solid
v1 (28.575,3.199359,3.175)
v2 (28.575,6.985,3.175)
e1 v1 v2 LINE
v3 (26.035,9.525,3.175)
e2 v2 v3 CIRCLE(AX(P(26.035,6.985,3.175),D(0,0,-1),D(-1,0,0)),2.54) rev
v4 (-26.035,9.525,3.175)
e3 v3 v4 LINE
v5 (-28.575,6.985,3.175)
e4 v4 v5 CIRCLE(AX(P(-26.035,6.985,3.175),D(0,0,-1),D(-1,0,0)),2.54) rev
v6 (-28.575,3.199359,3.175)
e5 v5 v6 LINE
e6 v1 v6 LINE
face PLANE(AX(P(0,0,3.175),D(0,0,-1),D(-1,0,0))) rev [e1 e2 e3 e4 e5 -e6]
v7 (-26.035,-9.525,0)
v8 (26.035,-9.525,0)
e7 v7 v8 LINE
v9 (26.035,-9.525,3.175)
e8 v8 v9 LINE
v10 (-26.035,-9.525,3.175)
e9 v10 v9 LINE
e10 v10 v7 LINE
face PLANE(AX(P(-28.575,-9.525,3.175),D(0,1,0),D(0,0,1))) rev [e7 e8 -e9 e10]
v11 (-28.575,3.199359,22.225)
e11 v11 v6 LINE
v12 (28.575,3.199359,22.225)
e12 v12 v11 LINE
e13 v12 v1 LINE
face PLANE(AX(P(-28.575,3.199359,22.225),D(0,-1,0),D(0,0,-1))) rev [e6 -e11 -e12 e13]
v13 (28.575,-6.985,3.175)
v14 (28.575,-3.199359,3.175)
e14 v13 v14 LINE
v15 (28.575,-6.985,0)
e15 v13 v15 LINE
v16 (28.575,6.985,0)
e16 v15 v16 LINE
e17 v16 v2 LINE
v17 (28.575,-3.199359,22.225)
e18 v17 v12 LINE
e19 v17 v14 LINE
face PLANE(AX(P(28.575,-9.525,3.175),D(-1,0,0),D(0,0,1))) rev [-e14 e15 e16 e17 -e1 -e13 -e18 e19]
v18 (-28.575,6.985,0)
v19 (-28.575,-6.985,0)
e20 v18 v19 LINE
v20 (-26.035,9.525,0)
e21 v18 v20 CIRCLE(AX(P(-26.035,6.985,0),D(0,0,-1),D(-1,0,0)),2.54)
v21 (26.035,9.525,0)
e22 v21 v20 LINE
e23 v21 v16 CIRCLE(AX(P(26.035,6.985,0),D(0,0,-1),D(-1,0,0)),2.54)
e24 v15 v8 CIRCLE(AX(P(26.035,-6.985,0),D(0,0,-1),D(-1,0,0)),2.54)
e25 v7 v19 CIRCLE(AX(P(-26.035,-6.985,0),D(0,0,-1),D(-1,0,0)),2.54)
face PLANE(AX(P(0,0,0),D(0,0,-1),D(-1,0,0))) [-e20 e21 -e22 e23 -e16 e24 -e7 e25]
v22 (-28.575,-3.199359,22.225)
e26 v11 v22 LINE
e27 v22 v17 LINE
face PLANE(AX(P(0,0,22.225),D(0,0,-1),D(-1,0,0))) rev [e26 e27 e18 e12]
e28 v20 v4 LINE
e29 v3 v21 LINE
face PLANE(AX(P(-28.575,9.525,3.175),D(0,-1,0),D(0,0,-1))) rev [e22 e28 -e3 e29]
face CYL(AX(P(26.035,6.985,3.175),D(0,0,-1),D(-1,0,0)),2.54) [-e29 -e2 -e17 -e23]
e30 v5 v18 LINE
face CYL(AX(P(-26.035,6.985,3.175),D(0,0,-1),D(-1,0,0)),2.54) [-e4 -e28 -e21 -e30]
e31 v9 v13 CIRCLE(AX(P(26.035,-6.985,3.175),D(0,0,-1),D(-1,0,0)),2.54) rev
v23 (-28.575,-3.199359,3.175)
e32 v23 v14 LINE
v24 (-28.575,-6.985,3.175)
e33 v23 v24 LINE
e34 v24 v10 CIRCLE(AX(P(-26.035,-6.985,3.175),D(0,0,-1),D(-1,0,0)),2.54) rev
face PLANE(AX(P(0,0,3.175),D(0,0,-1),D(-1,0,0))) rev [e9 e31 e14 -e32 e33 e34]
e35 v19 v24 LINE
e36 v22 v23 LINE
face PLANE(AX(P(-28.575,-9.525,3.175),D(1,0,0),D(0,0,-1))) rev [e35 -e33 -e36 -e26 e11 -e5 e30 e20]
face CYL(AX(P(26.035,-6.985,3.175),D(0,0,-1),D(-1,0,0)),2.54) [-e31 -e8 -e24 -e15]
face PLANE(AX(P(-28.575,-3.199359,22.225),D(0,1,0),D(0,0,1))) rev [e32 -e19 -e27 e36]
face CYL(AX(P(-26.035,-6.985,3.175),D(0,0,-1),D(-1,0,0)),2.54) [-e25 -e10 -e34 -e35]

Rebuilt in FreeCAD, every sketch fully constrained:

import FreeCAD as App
import Part
import Sketcher
from FreeCAD import Vector
Q = App.Units.Quantity


def edges_at(feature, points):
    """Names of the edges that pass closest to the given points."""
    edges = feature.Shape.Edges
    near = lambda p: min(range(len(edges)), key=lambda i: edges[i].distToShape(Part.Vertex(*p))[0])
    return sorted({f"Edge{near(p) + 1}" for p in points})

doc = App.newDocument("Part")
params = doc.addObject("Spreadsheet::Sheet", "Params")
for row, (alias, value) in enumerate([
    ("sketch1_width", "2.25 in"),
    ("sketch1_height", "0.75 in"),
    ("pad1_length", "0.125 in"),
    ("sketch2_width", "2.25 in"),
    ("pad2_length", "0.75 in"),
    ("fillet_radius", "0.1 in"),
], start=1):
    params.set(f"A{row}", alias)
    params.set(f"B{row}", "=" + value)
    params.setAlias(f"B{row}", alias)

body = doc.addObject("PartDesign::Body", "Body")

sketch1 = doc.addObject("Sketcher::SketchObject", "Sketch")
body.addObject(sketch1)
sketch1.AttachmentSupport = (doc.XY_Plane, [""])
sketch1.MapMode = "FlatFace"
sketch1.addGeometry([
    Part.LineSegment(Vector(-29, 10, 0), Vector(-29, -10, 0)),
    Part.LineSegment(Vector(-29, -10, 0), Vector(29, -10, 0)),
    Part.LineSegment(Vector(29, -10, 0), Vector(29, 10, 0)),
    Part.LineSegment(Vector(29, 10, 0), Vector(-29, 10, 0)),
], False)
sketch1.addConstraint([
    Sketcher.Constraint("Coincident", 0, 2, 1, 1),
    Sketcher.Constraint("Coincident", 1, 2, 2, 1),
    Sketcher.Constraint("Coincident", 2, 2, 3, 1),
    Sketcher.Constraint("Coincident", 3, 2, 0, 1),
    Sketcher.Constraint("Vertical", 0),
    Sketcher.Constraint("Horizontal", 1),
    Sketcher.Constraint("Vertical", 2),
    Sketcher.Constraint("Horizontal", 3),
    Sketcher.Constraint("Symmetric", 0, 2, 2, 2, -1, 1),
    Sketcher.Constraint("DistanceX", 1, 1, 1, 2, Q("2.25 in")),
    Sketcher.Constraint("DistanceY", 0, 2, 0, 1, Q("0.75 in")),
])
sketch1.setExpression("Constraints[9]", "Params.sketch1_width")
sketch1.setExpression("Constraints[10]", "Params.sketch1_height")
pad1 = doc.addObject("PartDesign::Pad", "Pad")
body.addObject(pad1)
pad1.Profile = sketch1
pad1.setExpression("Length", "Params.pad1_length")

sketch2 = doc.addObject("Sketcher::SketchObject", "Sketch001")
body.addObject(sketch2)
sketch2.AttachmentSupport = (doc.XY_Plane, [""])
sketch2.MapMode = "FlatFace"
sketch2.AttachmentOffset = App.Placement(Vector(0, 0, 0.125 * 25.4), App.Rotation())
sketch2.addGeometry([
    Part.LineSegment(Vector(-29, 3, 0), Vector(-29, -3, 0)),
    Part.LineSegment(Vector(-29, -3, 0), Vector(29, -3, 0)),
    Part.LineSegment(Vector(29, -3, 0), Vector(29, 3, 0)),
    Part.LineSegment(Vector(29, 3, 0), Vector(-29, 3, 0)),
], False)
sketch2.addConstraint([
    Sketcher.Constraint("Coincident", 0, 2, 1, 1),
    Sketcher.Constraint("Coincident", 1, 2, 2, 1),
    Sketcher.Constraint("Coincident", 2, 2, 3, 1),
    Sketcher.Constraint("Coincident", 3, 2, 0, 1),
    Sketcher.Constraint("Vertical", 0),
    Sketcher.Constraint("Horizontal", 1),
    Sketcher.Constraint("Vertical", 2),
    Sketcher.Constraint("Horizontal", 3),
    Sketcher.Constraint("Symmetric", 0, 2, 2, 2, -1, 1),
    Sketcher.Constraint("DistanceX", 1, 1, 1, 2, Q("2.25 in")),
    Sketcher.Constraint("DistanceY", 0, 2, 0, 1, 6.398718),
])
sketch2.setExpression("Constraints[9]", "Params.sketch2_width")
pad2 = doc.addObject("PartDesign::Pad", "Pad001")
body.addObject(pad2)
pad2.Profile = sketch2
pad2.setExpression("Length", "Params.pad2_length")
doc.recompute()

fillet = doc.addObject("PartDesign::Fillet", "Fillet")
body.addObject(fillet)
fillet.Base = (pad2, edges_at(pad2, [
    (28.575, -9.525, 1.587),
    (-28.575, -9.525, 1.587),
    (-28.575, 9.525, 1.587),
    (28.575, 9.525, 1.587),
]))
fillet.setExpression("Radius", "Params.fillet_radius")

doc.recompute()
